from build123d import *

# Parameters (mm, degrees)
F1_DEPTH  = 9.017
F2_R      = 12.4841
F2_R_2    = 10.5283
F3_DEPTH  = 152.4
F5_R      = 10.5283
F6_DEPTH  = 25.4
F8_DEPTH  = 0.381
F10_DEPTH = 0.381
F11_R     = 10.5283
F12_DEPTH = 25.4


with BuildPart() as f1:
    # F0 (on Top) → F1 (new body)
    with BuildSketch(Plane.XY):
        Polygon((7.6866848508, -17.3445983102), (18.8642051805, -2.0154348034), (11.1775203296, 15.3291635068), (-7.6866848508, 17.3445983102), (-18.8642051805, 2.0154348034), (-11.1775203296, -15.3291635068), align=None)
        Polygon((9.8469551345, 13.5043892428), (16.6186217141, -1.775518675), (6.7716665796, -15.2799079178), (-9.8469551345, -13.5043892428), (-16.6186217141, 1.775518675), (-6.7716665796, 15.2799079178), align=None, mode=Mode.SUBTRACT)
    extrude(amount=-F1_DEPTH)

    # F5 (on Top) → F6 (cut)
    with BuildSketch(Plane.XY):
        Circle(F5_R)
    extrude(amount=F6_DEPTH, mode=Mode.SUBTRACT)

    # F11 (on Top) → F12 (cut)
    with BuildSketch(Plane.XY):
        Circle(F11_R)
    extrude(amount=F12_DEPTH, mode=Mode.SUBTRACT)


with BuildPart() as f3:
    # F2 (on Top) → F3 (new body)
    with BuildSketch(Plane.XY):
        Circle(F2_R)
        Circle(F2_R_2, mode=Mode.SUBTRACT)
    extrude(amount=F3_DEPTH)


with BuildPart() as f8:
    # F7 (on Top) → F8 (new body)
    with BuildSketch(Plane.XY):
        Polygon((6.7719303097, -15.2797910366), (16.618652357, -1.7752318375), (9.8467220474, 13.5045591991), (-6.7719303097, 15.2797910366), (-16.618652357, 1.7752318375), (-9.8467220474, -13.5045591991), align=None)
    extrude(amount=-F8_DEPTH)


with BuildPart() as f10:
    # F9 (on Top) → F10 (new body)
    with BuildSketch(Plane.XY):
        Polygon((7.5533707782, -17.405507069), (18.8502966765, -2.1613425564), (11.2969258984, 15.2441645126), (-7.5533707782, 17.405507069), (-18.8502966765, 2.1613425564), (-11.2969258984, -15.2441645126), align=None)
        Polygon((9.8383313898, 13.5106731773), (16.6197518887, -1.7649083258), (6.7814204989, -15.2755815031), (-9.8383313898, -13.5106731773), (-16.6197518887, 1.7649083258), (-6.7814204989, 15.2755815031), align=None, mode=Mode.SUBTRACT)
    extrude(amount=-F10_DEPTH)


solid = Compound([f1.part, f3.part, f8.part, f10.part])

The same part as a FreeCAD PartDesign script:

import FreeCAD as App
import Part
import Sketcher
Q = App.Units.Quantity

doc = App.newDocument("Part")
body = doc.addObject("PartDesign::Body", "Body")

sketch1 = body.newObject("Sketcher::SketchObject", "Sketch")
sketch1.AttachmentSupport = (doc.getObject("XY_Plane"), [""])
sketch1.MapMode = "FlatFace"
sketch1.addGeometry([
    Part.LineSegment(App.Vector(7.686685, -17.344598, 0), App.Vector(18.864205, -2.015435, 0)),
    Part.LineSegment(App.Vector(18.864205, -2.015435, 0), App.Vector(11.17752, 15.329164, 0)),
    Part.LineSegment(App.Vector(11.17752, 15.329164, 0), App.Vector(-7.686685, 17.344598, 0)),
    Part.LineSegment(App.Vector(-7.686685, 17.344598, 0), App.Vector(-18.864205, 2.015435, 0)),
    Part.LineSegment(App.Vector(-18.864205, 2.015435, 0), App.Vector(-11.17752, -15.329164, 0)),
    Part.LineSegment(App.Vector(-11.17752, -15.329164, 0), App.Vector(7.686685, -17.344598, 0)),
    Part.LineSegment(App.Vector(-6.771667, 15.279908, 0), App.Vector(9.846955, 13.504389, 0)),
    Part.LineSegment(App.Vector(9.846955, 13.504389, 0), App.Vector(16.618622, -1.775519, 0)),
    Part.LineSegment(App.Vector(16.618622, -1.775519, 0), App.Vector(6.771667, -15.279908, 0)),
    Part.LineSegment(App.Vector(6.771667, -15.279908, 0), App.Vector(-9.846955, -13.504389, 0)),
    Part.LineSegment(App.Vector(-9.846955, -13.504389, 0), App.Vector(-16.618622, 1.775519, 0)),
    Part.LineSegment(App.Vector(-16.618622, 1.775519, 0), App.Vector(-6.771667, 15.279908, 0)),
], False)
sketch1.addConstraint([
    Sketcher.Constraint("Coincident", 0, 2, 1, 1),
    Sketcher.Constraint("Coincident", 1, 2, 2, 1),
    Sketcher.Constraint("Coincident", 2, 2, 3, 1),
    Sketcher.Constraint("Coincident", 3, 2, 4, 1),
    Sketcher.Constraint("Coincident", 4, 2, 5, 1),
    Sketcher.Constraint("Coincident", 5, 2, 0, 1),
    Sketcher.Constraint("Coincident", 6, 2, 7, 1),
    Sketcher.Constraint("Coincident", 7, 2, 8, 1),
    Sketcher.Constraint("Coincident", 8, 2, 9, 1),
    Sketcher.Constraint("Coincident", 9, 2, 10, 1),
    Sketcher.Constraint("Coincident", 10, 2, 11, 1),
    Sketcher.Constraint("Coincident", 11, 2, 6, 1),
    Sketcher.Constraint("Symmetric", 0, 2, 3, 2, -1, 1),
    Sketcher.Constraint("Symmetric", 1, 2, 4, 2, -1, 1),
    Sketcher.Constraint("Symmetric", 2, 2, 5, 2, -1, 1),
    Sketcher.Constraint("Symmetric", 6, 2, 9, 2, -1, 1),
    Sketcher.Constraint("Symmetric", 7, 2, 10, 2, -1, 1),
    Sketcher.Constraint("Symmetric", 8, 2, 11, 2, -1, 1),
    Sketcher.Constraint("Parallel", 5, 6),
    Sketcher.Constraint("Parallel", 4, 7),
    Sketcher.Constraint("Parallel", 3, 8),
    Sketcher.Constraint("Equal", 0, 1),
    Sketcher.Constraint("Equal", 1, 2),
    Sketcher.Constraint("Equal", 6, 7),
    Sketcher.Constraint("Equal", 7, 8),
    Sketcher.Constraint("Distance", 6, Q("0.658 in")),
    Sketcher.Constraint("DistanceY", -1, 1, 2, 2, Q("17.344598 mm")),
    Sketcher.Constraint("DistanceY", 0, 2, 1, 2, Q("17.344598 mm")),
    Sketcher.Constraint("DistanceX", 1, 2, 7, 2, Q("5.441101 mm")),
    Sketcher.Constraint("DistanceX", -1, 1, 1, 2, Q("11.17752 mm")),
])
pad1 = body.newObject("PartDesign::Pad", "Pad")
pad1.Profile = sketch1
pad1.Length = Q("0.355 in")
pad1.Reversed = True

sketch2 = body.newObject("Sketcher::SketchObject", "Sketch001")
sketch2.AttachmentSupport = (doc.getObject("XY_Plane"), [""])
sketch2.MapMode = "FlatFace"
sketch2.addGeometry(Part.Circle(App.Vector(0, 0, 0), App.Vector(0, 0, 1), 10.5283), False)
sketch2.addConstraint([
    Sketcher.Constraint("Coincident", 0, 3, -1, 1),
    Sketcher.Constraint("Diameter", 0, Q("0.829 in")),
])
pocket1 = body.newObject("PartDesign::Pocket", "Pocket")
pocket1.Profile = sketch2
pocket1.Length = Q("1 in")
pocket1.Reversed = True

sketch3 = body.newObject("Sketcher::SketchObject", "Sketch002")
sketch3.AttachmentSupport = (doc.getObject("XY_Plane"), [""])
sketch3.MapMode = "FlatFace"
sketch3.addGeometry(Part.Circle(App.Vector(0, 0, 0), App.Vector(0, 0, 1), 10.5283), False)
sketch3.addConstraint([
    Sketcher.Constraint("Coincident", 0, 3, -1, 1),
    Sketcher.Constraint("Diameter", 0, Q("0.829 in")),
])
pocket2 = body.newObject("PartDesign::Pocket", "Pocket001")
pocket2.Profile = sketch3
pocket2.Length = Q("1 in")
pocket2.Reversed = True
body2 = doc.addObject("PartDesign::Body", "Body001")

sketch4 = body2.newObject("Sketcher::SketchObject", "Sketch003")
sketch4.AttachmentSupport = (doc.getObject("XY_Plane001"), [""])
sketch4.MapMode = "FlatFace"
sketch4.addGeometry([
    Part.Circle(App.Vector(0, 0, 0), App.Vector(0, 0, 1), 12.4841),
    Part.Circle(App.Vector(0, 0, 0), App.Vector(0, 0, 1), 10.5283),
], False)
sketch4.addConstraint([
    Sketcher.Constraint("Coincident", 0, 3, -1, 1),
    Sketcher.Constraint("Coincident", 1, 3, -1, 1),
    Sketcher.Constraint("Diameter", 0, Q("0.983 in")),
    Sketcher.Constraint("Diameter", 1, Q("0.829 in")),
])
pad2 = body2.newObject("PartDesign::Pad", "Pad001")
pad2.Profile = sketch4
pad2.Length = Q("6 in")
body3 = doc.addObject("PartDesign::Body", "Body002")

sketch5 = body3.newObject("Sketcher::SketchObject", "Sketch004")
sketch5.AttachmentSupport = (doc.getObject("XY_Plane002"), [""])
sketch5.MapMode = "FlatFace"
sketch5.addGeometry([
    Part.LineSegment(App.Vector(6.77193, -15.279791, 0), App.Vector(16.618652, -1.775232, 0)),
    Part.LineSegment(App.Vector(16.618652, -1.775232, 0), App.Vector(9.846722, 13.504559, 0)),
    Part.LineSegment(App.Vector(9.846722, 13.504559, 0), App.Vector(-6.77193, 15.279791, 0)),
    Part.LineSegment(App.Vector(-6.77193, 15.279791, 0), App.Vector(-16.618652, 1.775232, 0)),
    Part.LineSegment(App.Vector(-16.618652, 1.775232, 0), App.Vector(-9.846722, -13.504559, 0)),
    Part.LineSegment(App.Vector(-9.846722, -13.504559, 0), App.Vector(6.77193, -15.279791, 0)),
], False)
sketch5.addConstraint([
    Sketcher.Constraint("Coincident", 0, 2, 1, 1),
    Sketcher.Constraint("Coincident", 1, 2, 2, 1),
    Sketcher.Constraint("Coincident", 2, 2, 3, 1),
    Sketcher.Constraint("Coincident", 3, 2, 4, 1),
    Sketcher.Constraint("Coincident", 4, 2, 5, 1),
    Sketcher.Constraint("Coincident", 5, 2, 0, 1),
    Sketcher.Constraint("Symmetric", 0, 2, 3, 2, -1, 1),
    Sketcher.Constraint("Symmetric", 1, 2, 4, 2, -1, 1),
    Sketcher.Constraint("Symmetric", 2, 2, 5, 2, -1, 1),
    Sketcher.Constraint("Equal", 0, 1),
    Sketcher.Constraint("Equal", 1, 2),
    Sketcher.Constraint("Distance", 0, Q("0.658 in")),
    Sketcher.Constraint("DistanceY", 0, 2, -1, 1, Q("1.775232 mm")),
    Sketcher.Constraint("DistanceY", -1, 1, 1, 2, Q("13.504559 mm")),
    Sketcher.Constraint("DistanceX", 2, 2, -1, 1, Q("6.77193 mm")),
])
pad3 = body3.newObject("PartDesign::Pad", "Pad002")
pad3.Profile = sketch5
pad3.Length = Q("0.015 in")
pad3.Reversed = True
body4 = doc.addObject("PartDesign::Body", "Body003")

sketch6 = body4.newObject("Sketcher::SketchObject", "Sketch005")
sketch6.AttachmentSupport = (doc.getObject("XY_Plane003"), [""])
sketch6.MapMode = "FlatFace"
sketch6.addGeometry([
    Part.LineSegment(App.Vector(7.553371, -17.405507, 0), App.Vector(18.850297, -2.161343, 0)),
    Part.LineSegment(App.Vector(18.850297, -2.161343, 0), App.Vector(11.296926, 15.244165, 0)),
    Part.LineSegment(App.Vector(11.296926, 15.244165, 0), App.Vector(-7.553371, 17.405507, 0)),
    Part.LineSegment(App.Vector(-7.553371, 17.405507, 0), App.Vector(-18.850297, 2.161343, 0)),
    Part.LineSegment(App.Vector(-18.850297, 2.161343, 0), App.Vector(-11.296926, -15.244165, 0)),
    Part.LineSegment(App.Vector(-11.296926, -15.244165, 0), App.Vector(7.553371, -17.405507, 0)),
    Part.LineSegment(App.Vector(-6.78142, 15.275582, 0), App.Vector(9.838331, 13.510673, 0)),
    Part.LineSegment(App.Vector(9.838331, 13.510673, 0), App.Vector(16.619752, -1.764908, 0)),
    Part.LineSegment(App.Vector(16.619752, -1.764908, 0), App.Vector(6.78142, -15.275582, 0)),
    Part.LineSegment(App.Vector(6.78142, -15.275582, 0), App.Vector(-9.838331, -13.510673, 0)),
    Part.LineSegment(App.Vector(-9.838331, -13.510673, 0), App.Vector(-16.619752, 1.764908, 0)),
    Part.LineSegment(App.Vector(-16.619752, 1.764908, 0), App.Vector(-6.78142, 15.275582, 0)),
], False)
sketch6.addConstraint([
    Sketcher.Constraint("Coincident", 0, 2, 1, 1),
    Sketcher.Constraint("Coincident", 1, 2, 2, 1),
    Sketcher.Constraint("Coincident", 2, 2, 3, 1),
    Sketcher.Constraint("Coincident", 3, 2, 4, 1),
    Sketcher.Constraint("Coincident", 4, 2, 5, 1),
    Sketcher.Constraint("Coincident", 5, 2, 0, 1),
    Sketcher.Constraint("Coincident", 6, 2, 7, 1),
    Sketcher.Constraint("Coincident", 7, 2, 8, 1),
    Sketcher.Constraint("Coincident", 8, 2, 9, 1),
    Sketcher.Constraint("Coincident", 9, 2, 10, 1),
    Sketcher.Constraint("Coincident", 10, 2, 11, 1),
    Sketcher.Constraint("Coincident", 11, 2, 6, 1),
    Sketcher.Constraint("Symmetric", 0, 2, 3, 2, -1, 1),
    Sketcher.Constraint("Symmetric", 1, 2, 4, 2, -1, 1),
    Sketcher.Constraint("Symmetric", 2, 2, 5, 2, -1, 1),
    Sketcher.Constraint("Symmetric", 6, 2, 9, 2, -1, 1),
    Sketcher.Constraint("Symmetric", 7, 2, 10, 2, -1, 1),
    Sketcher.Constraint("Symmetric", 8, 2, 11, 2, -1, 1),
    Sketcher.Constraint("Equal", 0, 1),
    Sketcher.Constraint("Equal", 1, 2),
    Sketcher.Constraint("Equal", 6, 7),
    Sketcher.Constraint("Equal", 7, 8),
    Sketcher.Constraint("Distance", 0, Q("0.747 in")),
    Sketcher.Constraint("Distance", 6, Q("0.658 in")),
    Sketcher.Constraint("DistanceY", 5, 2, 7, 2, Q("15.640599 mm")),
    Sketcher.Constraint("DistanceX", 2, 2, -1, 1, Q("7.553371 mm")),
    Sketcher.Constraint("DistanceX", -1, 1, 6, 2, Q("9.838331 mm")),
    Sketcher.Constraint("DistanceX", -1, 1, 7, 2, Q("16.619752 mm")),
    Sketcher.Constraint("DistanceY", 7, 2, -1, 1, Q("1.764908 mm")),
    Sketcher.Constraint("DistanceX", 1, 2, 0, 2, Q("7.553371 mm")),
])
pad4 = body4.newObject("PartDesign::Pad", "Pad003")
pad4.Profile = sketch6
pad4.Length = Q("0.015 in")
pad4.Reversed = True

doc.recompute()
